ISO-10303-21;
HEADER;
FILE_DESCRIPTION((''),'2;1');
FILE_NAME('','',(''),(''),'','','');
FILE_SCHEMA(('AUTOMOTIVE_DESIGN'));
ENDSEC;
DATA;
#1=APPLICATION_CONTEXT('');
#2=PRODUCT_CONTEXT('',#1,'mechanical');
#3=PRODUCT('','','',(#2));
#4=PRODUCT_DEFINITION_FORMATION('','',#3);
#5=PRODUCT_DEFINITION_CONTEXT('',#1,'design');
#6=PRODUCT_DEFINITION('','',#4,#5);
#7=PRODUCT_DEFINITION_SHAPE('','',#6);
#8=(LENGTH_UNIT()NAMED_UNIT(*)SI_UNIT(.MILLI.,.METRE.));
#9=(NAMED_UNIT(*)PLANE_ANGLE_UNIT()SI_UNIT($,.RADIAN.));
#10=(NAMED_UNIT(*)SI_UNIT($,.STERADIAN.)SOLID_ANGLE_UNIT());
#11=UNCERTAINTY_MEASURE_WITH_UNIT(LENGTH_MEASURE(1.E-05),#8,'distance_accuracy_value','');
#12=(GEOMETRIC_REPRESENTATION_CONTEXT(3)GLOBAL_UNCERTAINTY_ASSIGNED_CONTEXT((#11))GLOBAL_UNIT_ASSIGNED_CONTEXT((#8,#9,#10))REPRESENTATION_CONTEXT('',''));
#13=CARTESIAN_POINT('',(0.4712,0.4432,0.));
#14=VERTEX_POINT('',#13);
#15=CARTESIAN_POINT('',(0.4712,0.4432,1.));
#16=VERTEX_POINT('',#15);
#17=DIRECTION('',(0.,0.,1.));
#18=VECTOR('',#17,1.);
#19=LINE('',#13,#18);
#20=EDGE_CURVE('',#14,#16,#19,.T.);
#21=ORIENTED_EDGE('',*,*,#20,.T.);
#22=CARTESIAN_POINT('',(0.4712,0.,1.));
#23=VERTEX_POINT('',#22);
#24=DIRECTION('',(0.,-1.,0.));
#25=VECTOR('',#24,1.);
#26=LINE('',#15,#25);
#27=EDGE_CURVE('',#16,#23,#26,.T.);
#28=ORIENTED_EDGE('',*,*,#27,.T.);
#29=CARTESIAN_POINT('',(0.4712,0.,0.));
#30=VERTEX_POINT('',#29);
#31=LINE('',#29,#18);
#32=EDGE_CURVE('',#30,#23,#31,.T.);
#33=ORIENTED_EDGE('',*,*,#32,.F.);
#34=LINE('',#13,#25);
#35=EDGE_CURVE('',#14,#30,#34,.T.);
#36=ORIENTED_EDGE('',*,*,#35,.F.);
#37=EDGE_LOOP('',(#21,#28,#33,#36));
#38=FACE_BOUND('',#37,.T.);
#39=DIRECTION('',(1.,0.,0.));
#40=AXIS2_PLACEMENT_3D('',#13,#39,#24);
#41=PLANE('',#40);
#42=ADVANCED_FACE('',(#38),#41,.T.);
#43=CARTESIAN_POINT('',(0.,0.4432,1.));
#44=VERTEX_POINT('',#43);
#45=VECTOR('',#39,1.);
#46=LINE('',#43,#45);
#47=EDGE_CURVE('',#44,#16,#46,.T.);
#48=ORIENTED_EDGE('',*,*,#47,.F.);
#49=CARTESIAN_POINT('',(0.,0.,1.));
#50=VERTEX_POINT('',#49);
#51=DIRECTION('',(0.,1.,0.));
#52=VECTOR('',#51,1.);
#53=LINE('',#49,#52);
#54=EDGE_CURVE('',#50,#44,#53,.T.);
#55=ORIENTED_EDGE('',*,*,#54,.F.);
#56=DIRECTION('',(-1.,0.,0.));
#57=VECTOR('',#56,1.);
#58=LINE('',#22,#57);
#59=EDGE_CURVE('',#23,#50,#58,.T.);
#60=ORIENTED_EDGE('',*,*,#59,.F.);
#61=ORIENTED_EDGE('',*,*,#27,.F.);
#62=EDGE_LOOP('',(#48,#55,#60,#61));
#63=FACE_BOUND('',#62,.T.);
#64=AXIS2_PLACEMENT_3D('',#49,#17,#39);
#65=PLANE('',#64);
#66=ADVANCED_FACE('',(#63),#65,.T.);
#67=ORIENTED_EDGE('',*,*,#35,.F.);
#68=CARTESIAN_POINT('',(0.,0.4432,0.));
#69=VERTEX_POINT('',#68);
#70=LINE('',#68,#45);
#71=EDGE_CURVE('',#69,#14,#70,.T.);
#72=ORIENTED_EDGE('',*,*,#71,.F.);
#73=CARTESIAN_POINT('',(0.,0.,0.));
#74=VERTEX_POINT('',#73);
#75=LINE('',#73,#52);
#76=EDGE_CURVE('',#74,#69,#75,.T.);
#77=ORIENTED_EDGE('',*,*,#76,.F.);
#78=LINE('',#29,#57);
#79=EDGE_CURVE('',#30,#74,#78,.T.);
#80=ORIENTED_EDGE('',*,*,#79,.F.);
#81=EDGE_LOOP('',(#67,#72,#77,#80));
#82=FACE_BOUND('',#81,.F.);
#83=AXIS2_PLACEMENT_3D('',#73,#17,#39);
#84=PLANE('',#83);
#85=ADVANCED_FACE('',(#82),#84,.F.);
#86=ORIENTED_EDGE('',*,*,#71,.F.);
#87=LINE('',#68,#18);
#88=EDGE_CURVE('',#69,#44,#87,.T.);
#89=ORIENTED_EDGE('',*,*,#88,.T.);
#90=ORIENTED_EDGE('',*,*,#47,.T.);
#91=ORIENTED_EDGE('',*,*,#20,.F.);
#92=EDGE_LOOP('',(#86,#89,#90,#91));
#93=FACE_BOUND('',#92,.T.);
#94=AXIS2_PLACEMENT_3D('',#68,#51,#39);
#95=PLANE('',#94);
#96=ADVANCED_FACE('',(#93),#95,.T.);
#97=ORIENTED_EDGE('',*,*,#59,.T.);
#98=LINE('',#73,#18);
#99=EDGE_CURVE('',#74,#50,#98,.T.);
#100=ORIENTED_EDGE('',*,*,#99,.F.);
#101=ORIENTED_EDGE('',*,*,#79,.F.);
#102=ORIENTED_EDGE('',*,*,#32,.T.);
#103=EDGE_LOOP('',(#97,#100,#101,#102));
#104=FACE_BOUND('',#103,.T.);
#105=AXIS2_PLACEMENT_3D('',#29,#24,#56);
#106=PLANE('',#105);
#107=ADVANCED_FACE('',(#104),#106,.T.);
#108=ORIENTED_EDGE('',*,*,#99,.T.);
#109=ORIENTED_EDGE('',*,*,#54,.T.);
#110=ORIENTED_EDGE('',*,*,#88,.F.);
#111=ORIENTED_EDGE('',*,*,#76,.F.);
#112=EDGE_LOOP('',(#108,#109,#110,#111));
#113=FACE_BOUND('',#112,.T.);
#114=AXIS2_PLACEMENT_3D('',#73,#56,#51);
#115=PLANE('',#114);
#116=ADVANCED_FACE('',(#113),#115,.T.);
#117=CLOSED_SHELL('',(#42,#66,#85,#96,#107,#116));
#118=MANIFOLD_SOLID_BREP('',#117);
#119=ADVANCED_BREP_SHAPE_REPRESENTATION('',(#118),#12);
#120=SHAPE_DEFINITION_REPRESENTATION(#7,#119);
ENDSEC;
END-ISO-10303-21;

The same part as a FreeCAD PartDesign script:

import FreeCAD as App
import Part
import Sketcher


def add_polygon(sketch, points):
    """Adds a closed chain of lines whose ends are joined by coincident constraints."""
    first, n = sketch.GeometryCount, len(points)
    for a, b in zip(points, points[1:] + points[:1]):
        sketch.addGeometry(Part.LineSegment(App.Vector(*a, 0), App.Vector(*b, 0)), False)
    for i in range(n):
        sketch.addConstraint(Sketcher.Constraint("Coincident", first + i, 2, first + (i + 1) % n, 1))

doc = App.newDocument("Part")
body = doc.addObject("PartDesign::Body", "Body")

# Sketch on XY plane
sketch1 = body.newObject("Sketcher::SketchObject", "Sketch")
sketch1.AttachmentSupport = (doc.getObject("XY_Plane"), [""])
sketch1.MapMode = "FlatFace"
add_polygon(sketch1, [(0.47, 0.44), (0, 0.44), (0, 0), (0.47, 0)])  # lines 0-3
sketch1.addConstraint(Sketcher.Constraint("Horizontal", 0))
sketch1.addConstraint(Sketcher.Constraint("Vertical", 1))
sketch1.addConstraint(Sketcher.Constraint("Horizontal", 2))
sketch1.addConstraint(Sketcher.Constraint("Vertical", 3))
sketch1.addConstraint(Sketcher.Constraint("Coincident", 1, 2, -1, 1))
sketch1.addConstraint(Sketcher.Constraint("DistanceX", 0, 2, 0, 1, 0.4712))
sketch1.addConstraint(Sketcher.Constraint("DistanceY", 1, 2, 1, 1, 0.4432))
pad1 = body.newObject("PartDesign::Pad", "Pad")
pad1.Profile = sketch1
pad1.Length = 1

doc.recompute()
